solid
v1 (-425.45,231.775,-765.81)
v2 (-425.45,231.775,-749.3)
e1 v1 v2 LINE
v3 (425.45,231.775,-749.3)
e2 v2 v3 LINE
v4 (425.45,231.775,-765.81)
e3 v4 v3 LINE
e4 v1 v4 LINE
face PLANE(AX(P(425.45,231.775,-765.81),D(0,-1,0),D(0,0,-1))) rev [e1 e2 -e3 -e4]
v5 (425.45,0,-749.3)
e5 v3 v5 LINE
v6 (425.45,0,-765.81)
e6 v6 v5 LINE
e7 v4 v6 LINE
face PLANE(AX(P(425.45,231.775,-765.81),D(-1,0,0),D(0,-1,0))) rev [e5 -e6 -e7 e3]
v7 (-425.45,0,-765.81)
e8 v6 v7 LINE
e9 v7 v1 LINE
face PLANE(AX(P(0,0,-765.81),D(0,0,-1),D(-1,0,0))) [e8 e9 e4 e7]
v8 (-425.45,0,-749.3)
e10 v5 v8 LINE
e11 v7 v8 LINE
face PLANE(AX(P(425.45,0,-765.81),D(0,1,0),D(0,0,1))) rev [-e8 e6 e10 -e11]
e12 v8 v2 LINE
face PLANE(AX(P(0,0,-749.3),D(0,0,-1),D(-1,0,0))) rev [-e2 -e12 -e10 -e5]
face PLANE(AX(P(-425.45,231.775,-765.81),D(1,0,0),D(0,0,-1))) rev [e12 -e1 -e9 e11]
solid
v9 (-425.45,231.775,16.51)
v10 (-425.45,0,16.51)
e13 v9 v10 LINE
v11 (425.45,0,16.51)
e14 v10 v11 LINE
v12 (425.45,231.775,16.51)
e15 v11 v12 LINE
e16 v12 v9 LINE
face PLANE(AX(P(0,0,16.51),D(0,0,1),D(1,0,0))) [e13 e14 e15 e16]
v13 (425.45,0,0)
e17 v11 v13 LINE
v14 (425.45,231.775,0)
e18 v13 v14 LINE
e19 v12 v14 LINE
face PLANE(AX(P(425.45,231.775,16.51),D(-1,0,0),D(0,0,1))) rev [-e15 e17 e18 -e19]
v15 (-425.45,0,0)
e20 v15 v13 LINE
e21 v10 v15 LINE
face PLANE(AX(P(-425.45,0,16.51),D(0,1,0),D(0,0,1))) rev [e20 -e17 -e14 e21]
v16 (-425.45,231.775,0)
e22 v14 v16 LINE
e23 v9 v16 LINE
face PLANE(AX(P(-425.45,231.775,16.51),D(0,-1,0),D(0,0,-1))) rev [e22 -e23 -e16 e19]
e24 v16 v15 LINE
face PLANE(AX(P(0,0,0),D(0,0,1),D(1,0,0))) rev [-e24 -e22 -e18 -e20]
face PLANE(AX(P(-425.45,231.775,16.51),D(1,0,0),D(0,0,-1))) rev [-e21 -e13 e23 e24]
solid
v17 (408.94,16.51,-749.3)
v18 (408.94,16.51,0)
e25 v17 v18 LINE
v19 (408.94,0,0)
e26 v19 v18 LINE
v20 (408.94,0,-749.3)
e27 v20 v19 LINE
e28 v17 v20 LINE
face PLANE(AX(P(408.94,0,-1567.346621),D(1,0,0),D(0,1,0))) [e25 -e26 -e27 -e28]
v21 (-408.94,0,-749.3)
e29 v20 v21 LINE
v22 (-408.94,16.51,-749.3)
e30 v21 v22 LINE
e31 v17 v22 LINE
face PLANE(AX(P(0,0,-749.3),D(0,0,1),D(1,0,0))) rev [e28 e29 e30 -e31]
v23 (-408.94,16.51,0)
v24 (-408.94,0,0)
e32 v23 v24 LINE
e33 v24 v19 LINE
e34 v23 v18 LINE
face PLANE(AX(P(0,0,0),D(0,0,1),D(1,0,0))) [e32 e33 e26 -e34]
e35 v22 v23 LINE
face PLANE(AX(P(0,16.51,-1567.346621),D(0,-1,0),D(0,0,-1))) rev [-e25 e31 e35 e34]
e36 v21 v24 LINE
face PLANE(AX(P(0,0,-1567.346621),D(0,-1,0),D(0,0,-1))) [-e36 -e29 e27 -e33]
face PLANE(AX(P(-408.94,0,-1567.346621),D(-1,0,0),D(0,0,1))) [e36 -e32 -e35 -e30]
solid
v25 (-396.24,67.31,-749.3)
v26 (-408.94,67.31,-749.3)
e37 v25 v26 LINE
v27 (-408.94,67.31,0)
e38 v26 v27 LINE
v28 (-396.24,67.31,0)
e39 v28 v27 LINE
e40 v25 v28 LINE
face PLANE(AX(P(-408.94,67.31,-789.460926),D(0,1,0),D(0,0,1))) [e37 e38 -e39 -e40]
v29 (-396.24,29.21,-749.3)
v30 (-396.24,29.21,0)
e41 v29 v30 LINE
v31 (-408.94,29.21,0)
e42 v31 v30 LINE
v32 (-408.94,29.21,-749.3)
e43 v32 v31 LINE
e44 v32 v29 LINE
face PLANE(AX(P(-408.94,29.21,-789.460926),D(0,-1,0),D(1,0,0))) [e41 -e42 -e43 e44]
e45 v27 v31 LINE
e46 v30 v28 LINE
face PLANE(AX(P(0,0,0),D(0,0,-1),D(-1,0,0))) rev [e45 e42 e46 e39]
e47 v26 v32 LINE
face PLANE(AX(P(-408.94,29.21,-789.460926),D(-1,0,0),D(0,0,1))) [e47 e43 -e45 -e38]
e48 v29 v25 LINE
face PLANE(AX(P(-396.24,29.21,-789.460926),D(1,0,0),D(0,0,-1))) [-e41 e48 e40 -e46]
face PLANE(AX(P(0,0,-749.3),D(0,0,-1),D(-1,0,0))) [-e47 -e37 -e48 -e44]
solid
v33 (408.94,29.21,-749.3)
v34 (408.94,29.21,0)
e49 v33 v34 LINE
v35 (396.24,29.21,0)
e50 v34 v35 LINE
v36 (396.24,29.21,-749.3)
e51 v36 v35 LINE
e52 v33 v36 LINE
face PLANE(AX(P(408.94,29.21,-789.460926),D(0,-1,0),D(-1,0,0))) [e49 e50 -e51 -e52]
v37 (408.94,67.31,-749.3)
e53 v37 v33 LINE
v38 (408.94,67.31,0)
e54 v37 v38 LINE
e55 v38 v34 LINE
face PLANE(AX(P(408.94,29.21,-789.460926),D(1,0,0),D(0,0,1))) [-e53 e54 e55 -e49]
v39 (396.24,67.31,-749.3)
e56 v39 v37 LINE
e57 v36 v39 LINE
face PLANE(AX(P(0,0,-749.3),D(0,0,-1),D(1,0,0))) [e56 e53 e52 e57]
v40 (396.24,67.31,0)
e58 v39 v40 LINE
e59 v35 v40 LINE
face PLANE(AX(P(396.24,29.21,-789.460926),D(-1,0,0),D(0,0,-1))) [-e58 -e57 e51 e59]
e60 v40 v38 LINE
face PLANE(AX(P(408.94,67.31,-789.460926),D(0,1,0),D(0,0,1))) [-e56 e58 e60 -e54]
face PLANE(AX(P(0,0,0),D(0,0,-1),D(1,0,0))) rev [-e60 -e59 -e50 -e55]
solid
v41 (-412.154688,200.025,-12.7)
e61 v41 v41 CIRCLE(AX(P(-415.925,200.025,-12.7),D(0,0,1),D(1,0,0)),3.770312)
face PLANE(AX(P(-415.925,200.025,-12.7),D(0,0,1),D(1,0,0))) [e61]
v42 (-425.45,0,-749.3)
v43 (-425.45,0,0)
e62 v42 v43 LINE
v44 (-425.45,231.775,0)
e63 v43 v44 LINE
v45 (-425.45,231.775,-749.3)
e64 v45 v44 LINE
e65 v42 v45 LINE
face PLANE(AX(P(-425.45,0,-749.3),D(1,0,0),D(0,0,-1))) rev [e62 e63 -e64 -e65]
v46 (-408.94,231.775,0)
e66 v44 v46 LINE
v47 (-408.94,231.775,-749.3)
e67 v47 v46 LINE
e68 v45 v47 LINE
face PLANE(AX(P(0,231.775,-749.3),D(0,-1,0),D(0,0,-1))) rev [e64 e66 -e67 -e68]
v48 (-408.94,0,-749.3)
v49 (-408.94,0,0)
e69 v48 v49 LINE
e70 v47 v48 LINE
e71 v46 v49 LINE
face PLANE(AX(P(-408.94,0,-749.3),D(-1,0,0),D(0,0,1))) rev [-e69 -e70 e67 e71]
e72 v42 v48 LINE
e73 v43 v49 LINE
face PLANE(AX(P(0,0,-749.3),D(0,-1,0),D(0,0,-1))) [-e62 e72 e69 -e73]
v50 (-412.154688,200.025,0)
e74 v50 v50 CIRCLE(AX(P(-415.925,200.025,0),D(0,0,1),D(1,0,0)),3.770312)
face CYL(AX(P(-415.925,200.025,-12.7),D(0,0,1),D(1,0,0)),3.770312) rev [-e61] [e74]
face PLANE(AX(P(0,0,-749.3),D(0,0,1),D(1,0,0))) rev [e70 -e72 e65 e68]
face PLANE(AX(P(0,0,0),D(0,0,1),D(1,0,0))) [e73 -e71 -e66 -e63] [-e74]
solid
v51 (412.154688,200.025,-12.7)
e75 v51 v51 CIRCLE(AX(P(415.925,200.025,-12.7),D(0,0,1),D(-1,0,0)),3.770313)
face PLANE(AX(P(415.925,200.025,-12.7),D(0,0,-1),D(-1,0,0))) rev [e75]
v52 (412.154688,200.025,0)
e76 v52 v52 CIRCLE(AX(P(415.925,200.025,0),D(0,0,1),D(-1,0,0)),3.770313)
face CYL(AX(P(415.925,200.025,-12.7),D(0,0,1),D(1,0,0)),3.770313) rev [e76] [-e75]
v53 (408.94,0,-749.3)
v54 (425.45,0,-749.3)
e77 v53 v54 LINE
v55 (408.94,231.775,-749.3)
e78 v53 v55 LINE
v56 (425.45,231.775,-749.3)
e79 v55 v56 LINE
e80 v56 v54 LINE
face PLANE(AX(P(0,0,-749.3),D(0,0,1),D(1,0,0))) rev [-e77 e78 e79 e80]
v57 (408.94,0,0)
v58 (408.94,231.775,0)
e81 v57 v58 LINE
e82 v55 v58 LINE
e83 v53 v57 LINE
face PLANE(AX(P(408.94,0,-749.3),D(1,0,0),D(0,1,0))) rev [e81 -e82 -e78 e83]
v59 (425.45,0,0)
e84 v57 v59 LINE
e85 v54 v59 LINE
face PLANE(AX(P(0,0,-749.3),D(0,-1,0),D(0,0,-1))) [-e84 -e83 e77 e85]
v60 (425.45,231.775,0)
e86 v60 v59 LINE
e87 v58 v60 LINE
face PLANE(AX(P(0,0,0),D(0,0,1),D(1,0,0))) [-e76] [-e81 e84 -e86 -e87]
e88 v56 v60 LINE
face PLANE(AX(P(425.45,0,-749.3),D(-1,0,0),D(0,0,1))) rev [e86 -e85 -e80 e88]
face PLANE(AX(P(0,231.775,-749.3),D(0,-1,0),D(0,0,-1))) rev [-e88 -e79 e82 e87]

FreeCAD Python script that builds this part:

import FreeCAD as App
import Part
import Sketcher

V = App.Vector
Q = App.Units.Quantity

doc = App.newDocument("Part")
body = doc.addObject("PartDesign::Body", "Body")

# Sketch on XY plane
sketch1 = body.newObject("Sketcher::SketchObject", "Sketch")
sketch1.AttachmentSupport = (doc.getObject("XY_Plane"), [""])
sketch1.MapMode = "FlatFace"
sketch1.addGeometry([
    Part.LineSegment(V(-425.45, 231.775, 0), V(-425.45, 0, 0)),
    Part.LineSegment(V(-425.45, 0, 0), V(-408.94, 0, 0)),
    Part.LineSegment(V(-408.94, 0, 0), V(-408.94, 231.775, 0)),
    Part.LineSegment(V(-408.94, 231.775, 0), V(-425.45, 231.775, 0)),
], False)
sketch1.addConstraint([
    Sketcher.Constraint("Coincident", 0, 2, 1, 1),
    Sketcher.Constraint("Coincident", 1, 2, 2, 1),
    Sketcher.Constraint("Coincident", 2, 2, 3, 1),
    Sketcher.Constraint("Coincident", 3, 2, 0, 1),
    Sketcher.Constraint("Vertical", 0),
    Sketcher.Constraint("Horizontal", 1),
    Sketcher.Constraint("Vertical", 2),
    Sketcher.Constraint("Horizontal", 3),
    Sketcher.Constraint("PointOnObject", 0, 2, -1),
    Sketcher.Constraint("DistanceX", 1, 1, 1, 2, Q("0.65 in")),
    Sketcher.Constraint("DistanceX", 1, 2, -1, 1, Q("16.1 in")),
    Sketcher.Constraint("DistanceY", 0, 2, 0, 1, Q("9.125 in")),
])
pad1 = body.newObject("PartDesign::Pad", "Pad")
pad1.Profile = sketch1
pad1.Length = Q("29.5 in")
pad1.Reversed = True
body2 = doc.addObject("PartDesign::Body", "Body001")

# Sketch on XY plane
sketch2 = body2.newObject("Sketcher::SketchObject", "Sketch001")
sketch2.AttachmentSupport = (doc.getObject("XY_Plane001"), [""])
sketch2.MapMode = "FlatFace"
sketch2.addGeometry([
    Part.LineSegment(V(408.94, 231.775, 0), V(408.94, 0, 0)),
    Part.LineSegment(V(408.94, 0, 0), V(425.45, 0, 0)),
    Part.LineSegment(V(425.45, 0, 0), V(425.45, 231.775, 0)),
    Part.LineSegment(V(425.45, 231.775, 0), V(408.94, 231.775, 0)),
], False)
sketch2.addConstraint([
    Sketcher.Constraint("Coincident", 0, 2, 1, 1),
    Sketcher.Constraint("Coincident", 1, 2, 2, 1),
    Sketcher.Constraint("Coincident", 2, 2, 3, 1),
    Sketcher.Constraint("Coincident", 3, 2, 0, 1),
    Sketcher.Constraint("Vertical", 0),
    Sketcher.Constraint("Horizontal", 1),
    Sketcher.Constraint("Vertical", 2),
    Sketcher.Constraint("Horizontal", 3),
    Sketcher.Constraint("PointOnObject", 0, 2, -1),
    Sketcher.Constraint("DistanceX", 1, 1, 1, 2, Q("0.65 in")),
    Sketcher.Constraint("DistanceX", -1, 1, 0, 2, Q("16.1 in")),
    Sketcher.Constraint("DistanceY", 0, 2, 0, 1, Q("9.125 in")),
])
pad2 = body2.newObject("PartDesign::Pad", "Pad001")
pad2.Profile = sketch2
pad2.Length = Q("29.5 in")
pad2.Reversed = True
body3 = doc.addObject("PartDesign::Body", "Body002")

# Sketch on XY plane
sketch3 = body3.newObject("Sketcher::SketchObject", "Sketch002")
sketch3.AttachmentSupport = (doc.getObject("XY_Plane002"), [""])
sketch3.MapMode = "FlatFace"
sketch3.addGeometry([
    Part.LineSegment(V(-408.94, 16.51, 0), V(-408.94, 0, 0)),
    Part.LineSegment(V(-408.94, 0, 0), V(408.94, 0, 0)),
    Part.LineSegment(V(408.94, 0, 0), V(408.94, 16.51, 0)),
    Part.LineSegment(V(408.94, 16.51, 0), V(-408.94, 16.51, 0)),
], False)
sketch3.addConstraint([
    Sketcher.Constraint("Coincident", 0, 2, 1, 1),
    Sketcher.Constraint("Coincident", 1, 2, 2, 1),
    Sketcher.Constraint("Coincident", 2, 2, 3, 1),
    Sketcher.Constraint("Coincident", 3, 2, 0, 1),
    Sketcher.Constraint("Vertical", 0),
    Sketcher.Constraint("Horizontal", 1),
    Sketcher.Constraint("Vertical", 2),
    Sketcher.Constraint("Horizontal", 3),
    Sketcher.Constraint("Symmetric", 0, 2, 1, 2, -1, 1),
    Sketcher.Constraint("DistanceX", 1, 1, 1, 2, Q("32.2 in")),
    Sketcher.Constraint("DistanceY", 0, 2, 0, 1, Q("0.65 in")),
])
pad3 = body3.newObject("PartDesign::Pad", "Pad002")
pad3.Profile = sketch3
pad3.Length = Q("29.5 in")
pad3.Reversed = True
body4 = doc.addObject("PartDesign::Body", "Body003")

# Sketch on XY plane
sketch4 = body4.newObject("Sketcher::SketchObject", "Sketch003")
sketch4.AttachmentSupport = (doc.getObject("XY_Plane003"), [""])
sketch4.MapMode = "FlatFace"
sketch4.AttachmentOffset = App.Placement(V(0, 0, -29.5 * 25.4), App.Rotation())
sketch4.addGeometry([
    Part.LineSegment(V(425.45, 231.775, 0), V(425.45, 0, 0)),
    Part.LineSegment(V(425.45, 0, 0), V(-425.45, 0, 0)),
    Part.LineSegment(V(-425.45, 0, 0), V(-425.45, 231.775, 0)),
    Part.LineSegment(V(-425.45, 231.775, 0), V(425.45, 231.775, 0)),
], False)
sketch4.addConstraint([
    Sketcher.Constraint("Coincident", 0, 2, 1, 1),
    Sketcher.Constraint("Coincident", 1, 2, 2, 1),
    Sketcher.Constraint("Coincident", 2, 2, 3, 1),
    Sketcher.Constraint("Coincident", 3, 2, 0, 1),
    Sketcher.Constraint("Vertical", 0),
    Sketcher.Constraint("Horizontal", 1),
    Sketcher.Constraint("Vertical", 2),
    Sketcher.Constraint("Horizontal", 3),
    Sketcher.Constraint("Symmetric", 0, 2, 1, 2, -1, 1),
    Sketcher.Constraint("DistanceX", 1, 2, 1, 1, Q("33.5 in")),
    Sketcher.Constraint("DistanceY", 0, 2, 0, 1, Q("9.125 in")),
])
pad4 = body4.newObject("PartDesign::Pad", "Pad003")
pad4.Profile = sketch4
pad4.Length = Q("0.65 in")
pad4.Reversed = True
body5 = doc.addObject("PartDesign::Body", "Body004")

# Sketch on XY plane
sketch5 = body5.newObject("Sketcher::SketchObject", "Sketch004")
sketch5.AttachmentSupport = (doc.getObject("XY_Plane004"), [""])
sketch5.MapMode = "FlatFace"
sketch5.addGeometry([
    Part.LineSegment(V(-408.94, 67.31, 0), V(-408.94, 29.21, 0)),
    Part.LineSegment(V(-408.94, 29.21, 0), V(-396.24, 29.21, 0)),
    Part.LineSegment(V(-396.24, 29.21, 0), V(-396.24, 67.31, 0)),
    Part.LineSegment(V(-396.24, 67.31, 0), V(-408.94, 67.31, 0)),
], False)
sketch5.addConstraint([
    Sketcher.Constraint("Coincident", 0, 2, 1, 1),
    Sketcher.Constraint("Coincident", 1, 2, 2, 1),
    Sketcher.Constraint("Coincident", 2, 2, 3, 1),
    Sketcher.Constraint("Coincident", 3, 2, 0, 1),
    Sketcher.Constraint("Vertical", 0),
    Sketcher.Constraint("Horizontal", 1),
    Sketcher.Constraint("Vertical", 2),
    Sketcher.Constraint("Horizontal", 3),
    Sketcher.Constraint("DistanceX", 1, 1, 1, 2, Q("0.5 in")),
    Sketcher.Constraint("DistanceY", 0, 2, 0, 1, Q("1.5 in")),
    Sketcher.Constraint("DistanceX", 0, 2, -1, 1, Q("16.1 in")),
    Sketcher.Constraint("DistanceY", -1, 1, 0, 2, Q("1.15 in")),
])
pad5 = body5.newObject("PartDesign::Pad", "Pad004")
pad5.Profile = sketch5
pad5.Length = Q("29.5 in")
pad5.Reversed = True
body6 = doc.addObject("PartDesign::Body", "Body005")
doc.recompute()

mirroring = doc.addObject("Part::Mirroring", "Mirroring")
mirroring.Source = body5
mirroring.Base = V(0, 0, 0)
mirroring.Normal = V(1, 0, 0)
body6.BaseFeature = mirroring
doc.recompute()
body7 = doc.addObject("PartDesign::Body", "Body006")
body7.AllowCompound = True

# Sketch on XY plane
sketch6 = body7.newObject("Sketcher::SketchObject", "Sketch005")
sketch6.AttachmentSupport = (doc.getObject("XY_Plane006"), [""])
sketch6.MapMode = "FlatFace"
sketch6.addGeometry([
    Part.Circle(V(-415.925, 200.025, 0), V(0, 0, 1), 3.770313),
    Part.Circle(V(415.925, 200.025, 0), V(0, 0, 1), 3.770313),
], False)
sketch6.addConstraint([
    Sketcher.Constraint("Equal", 0, 1),
    Sketcher.Constraint("Symmetric", 0, 3, 1, 3, -2),
    Sketcher.Constraint("Diameter", 0, Q("0.296875 in")),
    Sketcher.Constraint("DistanceX", 0, 3, 1, 3, Q("32.75 in")),
    Sketcher.Constraint("DistanceY", -1, 1, 0, 3, Q("7.875 in")),
])
pad6 = body7.newObject("PartDesign::Pad", "Pad005")
pad6.Profile = sketch6
pad6.Length = Q("0.5 in")
pad6.Reversed = True
doc.recompute()

body8 = doc.addObject("PartDesign::Body", "Body007")
body8.BaseFeature = body7
boolean = body.newObject("PartDesign::Boolean", "Boolean")
boolean.Type = "Cut"
boolean.addObjects([body8])
doc.recompute()

boolean2 = body2.newObject("PartDesign::Boolean", "Boolean001")
boolean2.Type = "Cut"
boolean2.addObjects([body7])
body9 = doc.addObject("PartDesign::Body", "Body008")

# Sketch on XY plane
sketch7 = body9.newObject("Sketcher::SketchObject", "Sketch006")
sketch7.AttachmentSupport = (doc.getObject("XY_Plane008"), [""])
sketch7.MapMode = "FlatFace"
sketch7.addGeometry([
    Part.LineSegment(V(-425.45, 231.775, 0), V(-425.45, 0, 0)),
    Part.LineSegment(V(-425.45, 0, 0), V(425.45, 0, 0)),
    Part.LineSegment(V(425.45, 0, 0), V(425.45, 231.775, 0)),
    Part.LineSegment(V(425.45, 231.775, 0), V(-425.45, 231.775, 0)),
], False)
sketch7.addConstraint([
    Sketcher.Constraint("Coincident", 0, 2, 1, 1),
    Sketcher.Constraint("Coincident", 1, 2, 2, 1),
    Sketcher.Constraint("Coincident", 2, 2, 3, 1),
    Sketcher.Constraint("Coincident", 3, 2, 0, 1),
    Sketcher.Constraint("Vertical", 0),
    Sketcher.Constraint("Horizontal", 1),
    Sketcher.Constraint("Vertical", 2),
    Sketcher.Constraint("Horizontal", 3),
    Sketcher.Constraint("Symmetric", 0, 2, 1, 2, -1, 1),
    Sketcher.Constraint("DistanceX", 1, 1, 1, 2, Q("33.5 in")),
    Sketcher.Constraint("DistanceY", 0, 2, 0, 1, Q("9.125 in")),
])
pad7 = body9.newObject("PartDesign::Pad", "Pad006")
pad7.Profile = sketch7
pad7.Length = Q("0.65 in")
mirroring.Visibility = False

doc.recompute()
